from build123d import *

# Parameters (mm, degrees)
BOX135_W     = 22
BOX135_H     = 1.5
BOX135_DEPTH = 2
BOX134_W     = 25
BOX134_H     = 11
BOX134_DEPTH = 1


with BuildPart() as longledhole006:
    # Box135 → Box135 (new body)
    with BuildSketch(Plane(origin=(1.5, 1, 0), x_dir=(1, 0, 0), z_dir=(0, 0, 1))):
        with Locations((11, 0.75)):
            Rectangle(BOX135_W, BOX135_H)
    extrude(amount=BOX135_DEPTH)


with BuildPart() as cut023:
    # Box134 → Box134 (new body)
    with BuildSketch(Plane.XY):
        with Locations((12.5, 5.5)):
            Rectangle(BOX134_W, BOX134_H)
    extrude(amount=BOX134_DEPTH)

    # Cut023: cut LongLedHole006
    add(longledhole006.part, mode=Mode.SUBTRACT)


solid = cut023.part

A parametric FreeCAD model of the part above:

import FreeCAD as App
import Part
import Sketcher
Q = App.Units.Quantity

doc = App.newDocument("Part")
body = doc.addObject("PartDesign::Body", "Body")

sketch1 = body.newObject("Sketcher::SketchObject", "Sketch")
sketch1.AttachmentSupport = (doc.getObject("XY_Plane"), [""])
sketch1.MapMode = "FlatFace"
sketch1.addGeometry(Part.LineSegment(App.Vector(1.5, 2.5, 0), App.Vector(1.5, 1, 0)), False)
sketch1.addGeometry(Part.LineSegment(App.Vector(1.5, 1, 0), App.Vector(23.5, 1, 0)), False)
sketch1.addGeometry(Part.LineSegment(App.Vector(23.5, 1, 0), App.Vector(23.5, 2.5, 0)), False)
sketch1.addGeometry(Part.LineSegment(App.Vector(23.5, 2.5, 0), App.Vector(1.5, 2.5, 0)), False)
sketch1.addConstraint(Sketcher.Constraint("Coincident", 0, 2, 1, 1))
sketch1.addConstraint(Sketcher.Constraint("Coincident", 1, 2, 2, 1))
sketch1.addConstraint(Sketcher.Constraint("Coincident", 2, 2, 3, 1))
sketch1.addConstraint(Sketcher.Constraint("Coincident", 3, 2, 0, 1))
sketch1.addConstraint(Sketcher.Constraint("Vertical", 0))
sketch1.addConstraint(Sketcher.Constraint("Horizontal", 1))
sketch1.addConstraint(Sketcher.Constraint("Vertical", 2))
sketch1.addConstraint(Sketcher.Constraint("Horizontal", 3))
sketch1.addConstraint(Sketcher.Constraint("DistanceX", 1, 1, 1, 2, Q("22 mm")))
sketch1.addConstraint(Sketcher.Constraint("DistanceY", 0, 2, 0, 1, Q("1.5 mm")))
sketch1.addConstraint(Sketcher.Constraint("DistanceY", -1, 1, 0, 2, Q("1 mm")))
sketch1.addConstraint(Sketcher.Constraint("DistanceX", -1, 1, 0, 2, Q("1.5 mm")))
pad1 = body.newObject("PartDesign::Pad", "Pad")
pad1.Profile = sketch1
pad1.Length = 2
body2 = doc.addObject("PartDesign::Body", "Body001")

sketch2 = body2.newObject("Sketcher::SketchObject", "Sketch001")
sketch2.AttachmentSupport = (doc.getObject("XY_Plane001"), [""])
sketch2.MapMode = "FlatFace"
sketch2.addGeometry(Part.LineSegment(App.Vector(0, 11, 0), App.Vector(0, 0, 0)), False)
sketch2.addGeometry(Part.LineSegment(App.Vector(0, 0, 0), App.Vector(25, 0, 0)), False)
sketch2.addGeometry(Part.LineSegment(App.Vector(25, 0, 0), App.Vector(25, 11, 0)), False)
sketch2.addGeometry(Part.LineSegment(App.Vector(25, 11, 0), App.Vector(0, 11, 0)), False)
sketch2.addConstraint(Sketcher.Constraint("Coincident", 0, 2, 1, 1))
sketch2.addConstraint(Sketcher.Constraint("Coincident", 1, 2, 2, 1))
sketch2.addConstraint(Sketcher.Constraint("Coincident", 2, 2, 3, 1))
sketch2.addConstraint(Sketcher.Constraint("Coincident", 3, 2, 0, 1))
sketch2.addConstraint(Sketcher.Constraint("Vertical", 0))
sketch2.addConstraint(Sketcher.Constraint("Horizontal", 1))
sketch2.addConstraint(Sketcher.Constraint("Vertical", 2))
sketch2.addConstraint(Sketcher.Constraint("Horizontal", 3))
sketch2.addConstraint(Sketcher.Constraint("Coincident", 0, 2, -1, 1))
sketch2.addConstraint(Sketcher.Constraint("DistanceX", 1, 1, 1, 2, Q("25 mm")))
sketch2.addConstraint(Sketcher.Constraint("DistanceY", 0, 2, 0, 1, Q("11 mm")))
pad2 = body2.newObject("PartDesign::Pad", "Pad001")
pad2.Profile = sketch2
pad2.Length = 1
doc.recompute()

boolean = body2.newObject("PartDesign::Boolean", "Boolean")
boolean.Type = "Cut"
boolean.addObjects([body])

doc.recompute()
